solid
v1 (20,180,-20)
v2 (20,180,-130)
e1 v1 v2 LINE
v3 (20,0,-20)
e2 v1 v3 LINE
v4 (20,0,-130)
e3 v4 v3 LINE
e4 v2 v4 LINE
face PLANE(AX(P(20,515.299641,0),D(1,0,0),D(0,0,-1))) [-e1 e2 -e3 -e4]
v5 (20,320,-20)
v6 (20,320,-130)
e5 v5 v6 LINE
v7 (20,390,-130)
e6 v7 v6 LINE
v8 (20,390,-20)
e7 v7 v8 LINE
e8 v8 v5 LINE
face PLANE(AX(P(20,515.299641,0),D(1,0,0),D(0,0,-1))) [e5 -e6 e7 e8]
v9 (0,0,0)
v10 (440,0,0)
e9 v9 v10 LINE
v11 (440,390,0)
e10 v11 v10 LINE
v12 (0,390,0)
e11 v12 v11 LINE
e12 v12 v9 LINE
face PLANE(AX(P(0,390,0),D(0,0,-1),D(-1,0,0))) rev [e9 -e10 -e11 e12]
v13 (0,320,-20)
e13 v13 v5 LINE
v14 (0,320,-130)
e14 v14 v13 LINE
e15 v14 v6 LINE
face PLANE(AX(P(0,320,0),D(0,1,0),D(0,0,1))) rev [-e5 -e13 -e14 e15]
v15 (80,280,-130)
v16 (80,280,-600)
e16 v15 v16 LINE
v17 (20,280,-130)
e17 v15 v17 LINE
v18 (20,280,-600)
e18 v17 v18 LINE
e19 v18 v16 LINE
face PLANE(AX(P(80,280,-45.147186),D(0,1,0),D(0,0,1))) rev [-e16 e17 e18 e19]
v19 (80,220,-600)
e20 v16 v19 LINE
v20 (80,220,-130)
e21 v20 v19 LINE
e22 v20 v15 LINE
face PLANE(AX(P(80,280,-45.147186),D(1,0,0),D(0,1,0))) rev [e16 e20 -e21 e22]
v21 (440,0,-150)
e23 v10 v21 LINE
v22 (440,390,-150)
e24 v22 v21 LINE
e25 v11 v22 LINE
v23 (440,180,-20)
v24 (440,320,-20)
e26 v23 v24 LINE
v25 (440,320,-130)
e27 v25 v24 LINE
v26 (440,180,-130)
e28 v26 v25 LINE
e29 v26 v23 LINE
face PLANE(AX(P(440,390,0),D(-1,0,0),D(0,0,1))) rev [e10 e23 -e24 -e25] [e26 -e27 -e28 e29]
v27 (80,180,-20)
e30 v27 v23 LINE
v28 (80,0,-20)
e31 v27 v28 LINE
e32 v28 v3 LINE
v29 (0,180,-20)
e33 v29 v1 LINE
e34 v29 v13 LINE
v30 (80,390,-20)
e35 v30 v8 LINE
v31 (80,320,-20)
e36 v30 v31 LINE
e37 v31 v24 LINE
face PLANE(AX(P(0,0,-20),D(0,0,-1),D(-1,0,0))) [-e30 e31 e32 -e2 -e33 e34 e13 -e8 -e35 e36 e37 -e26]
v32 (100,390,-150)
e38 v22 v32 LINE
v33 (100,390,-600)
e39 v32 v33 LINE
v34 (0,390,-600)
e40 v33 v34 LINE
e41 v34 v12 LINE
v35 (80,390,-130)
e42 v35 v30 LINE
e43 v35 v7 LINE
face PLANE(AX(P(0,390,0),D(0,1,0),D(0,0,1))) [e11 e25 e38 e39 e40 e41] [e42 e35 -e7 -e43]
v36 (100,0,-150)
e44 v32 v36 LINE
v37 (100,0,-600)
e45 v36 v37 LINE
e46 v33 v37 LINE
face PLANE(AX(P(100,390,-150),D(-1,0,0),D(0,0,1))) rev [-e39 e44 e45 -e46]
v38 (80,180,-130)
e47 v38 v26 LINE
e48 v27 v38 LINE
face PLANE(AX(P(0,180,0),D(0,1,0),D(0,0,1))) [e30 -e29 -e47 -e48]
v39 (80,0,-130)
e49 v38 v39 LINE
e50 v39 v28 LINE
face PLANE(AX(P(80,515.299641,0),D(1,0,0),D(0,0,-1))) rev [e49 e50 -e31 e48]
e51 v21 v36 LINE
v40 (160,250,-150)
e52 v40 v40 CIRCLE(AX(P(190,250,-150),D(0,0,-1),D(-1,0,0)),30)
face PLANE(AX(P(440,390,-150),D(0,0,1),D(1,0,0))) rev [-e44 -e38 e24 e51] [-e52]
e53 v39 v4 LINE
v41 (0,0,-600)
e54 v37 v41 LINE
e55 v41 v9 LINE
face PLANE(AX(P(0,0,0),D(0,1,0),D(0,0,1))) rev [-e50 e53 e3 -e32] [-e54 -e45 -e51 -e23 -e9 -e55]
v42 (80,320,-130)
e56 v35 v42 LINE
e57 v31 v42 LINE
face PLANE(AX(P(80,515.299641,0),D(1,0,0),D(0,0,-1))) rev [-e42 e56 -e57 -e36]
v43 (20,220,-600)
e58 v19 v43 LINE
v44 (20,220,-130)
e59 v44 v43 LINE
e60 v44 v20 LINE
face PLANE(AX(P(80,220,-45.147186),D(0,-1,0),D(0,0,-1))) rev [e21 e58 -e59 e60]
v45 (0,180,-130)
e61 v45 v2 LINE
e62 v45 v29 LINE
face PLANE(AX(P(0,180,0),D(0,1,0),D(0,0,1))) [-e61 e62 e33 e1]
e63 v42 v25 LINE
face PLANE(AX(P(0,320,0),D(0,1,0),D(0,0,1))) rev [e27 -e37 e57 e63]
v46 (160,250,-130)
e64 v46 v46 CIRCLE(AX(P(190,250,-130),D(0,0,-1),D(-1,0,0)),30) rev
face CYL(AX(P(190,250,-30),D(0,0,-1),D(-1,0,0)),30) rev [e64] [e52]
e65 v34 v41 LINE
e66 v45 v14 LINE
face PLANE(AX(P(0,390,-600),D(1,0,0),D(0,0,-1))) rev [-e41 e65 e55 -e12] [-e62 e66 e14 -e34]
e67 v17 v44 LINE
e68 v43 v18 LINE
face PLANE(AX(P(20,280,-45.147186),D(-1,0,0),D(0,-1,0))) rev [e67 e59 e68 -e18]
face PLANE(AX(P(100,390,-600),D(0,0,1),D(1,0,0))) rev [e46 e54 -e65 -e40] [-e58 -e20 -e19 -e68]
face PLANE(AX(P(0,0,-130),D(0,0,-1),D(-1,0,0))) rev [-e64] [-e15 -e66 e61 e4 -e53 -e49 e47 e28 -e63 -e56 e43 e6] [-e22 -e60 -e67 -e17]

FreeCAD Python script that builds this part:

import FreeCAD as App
import Part
import Sketcher

V = App.Vector

doc = App.newDocument("Part")
params = doc.addObject("Spreadsheet::Sheet", "Params")
for row, (alias, value) in enumerate([
    ("sketch1_width", "440 mm"),
    ("sketch1_width2", "340 mm"),
    ("sketch1_height", "150 mm"),
    ("sketch1_height2", "450 mm"),
    ("pad1_length", "390 mm"),
    ("sketch2_diameter", "60 mm"),
    ("pocket1_length", "120 mm"),
    ("sketch3_width", "140 mm"),
    ("sketch3_height", "110 mm"),
    ("sketch4_width", "60 mm"),
    ("sketch4_height", "110 mm"),
    ("pocket3_length", "390 mm"),
    ("sketch5_width", "60 mm"),
    ("pocket4_length", "470 mm"),
], start=1):
    params.set(f"A{row}", alias)
    params.set(f"B{row}", "=" + value)
    params.setAlias(f"B{row}", alias)

body = doc.addObject("PartDesign::Body", "Body")

sketch1 = body.newObject("Sketcher::SketchObject", "Sketch")
sketch1.AttachmentSupport = (doc.getObject("XZ_Plane"), [""])
sketch1.MapMode = "FlatFace"
sketch1.addGeometry([
    Part.LineSegment(V(0, 0, 0), V(440, 0, 0)),
    Part.LineSegment(V(440, 0, 0), V(440, -150, 0)),
    Part.LineSegment(V(440, -150, 0), V(100, -150, 0)),
    Part.LineSegment(V(100, -150, 0), V(100, -600, 0)),
    Part.LineSegment(V(100, -600, 0), V(0, -600, 0)),
    Part.LineSegment(V(0, -600, 0), V(0, 0, 0)),
], False)
sketch1.addConstraint([
    Sketcher.Constraint("Coincident", 0, 2, 1, 1),
    Sketcher.Constraint("Coincident", 1, 2, 2, 1),
    Sketcher.Constraint("Coincident", 2, 2, 3, 1),
    Sketcher.Constraint("Coincident", 3, 2, 4, 1),
    Sketcher.Constraint("Coincident", 4, 2, 5, 1),
    Sketcher.Constraint("Coincident", 5, 2, 0, 1),
    Sketcher.Constraint("Horizontal", 0),
    Sketcher.Constraint("Vertical", 1),
    Sketcher.Constraint("Horizontal", 2),
    Sketcher.Constraint("Vertical", 3),
    Sketcher.Constraint("Horizontal", 4),
    Sketcher.Constraint("Vertical", 5),
    Sketcher.Constraint("Coincident", 5, 2, -1, 1),
    Sketcher.Constraint("DistanceX", 0, 1, 0, 2, 440.0),
    Sketcher.Constraint("DistanceX", 2, 2, 2, 1, 340.0),
    Sketcher.Constraint("DistanceY", 1, 2, 1, 1, 150.0),
    Sketcher.Constraint("DistanceY", 3, 2, 3, 1, 450.0),
])
sketch1.setExpression("Constraints[13]", "Params.sketch1_width")
sketch1.setExpression("Constraints[14]", "Params.sketch1_width2")
sketch1.setExpression("Constraints[15]", "Params.sketch1_height")
sketch1.setExpression("Constraints[16]", "Params.sketch1_height2")
pad1 = body.newObject("PartDesign::Pad", "Pad")
pad1.Profile = sketch1
pad1.setExpression("Length", "Params.pad1_length")
pad1.Reversed = True

sketch2 = body.newObject("Sketcher::SketchObject", "Sketch001")
sketch2.AttachmentSupport = (doc.getObject("XY_Plane"), [""])
sketch2.MapMode = "FlatFace"
sketch2.AttachmentOffset = App.Placement(V(0, 0, -150), App.Rotation())
sketch2.addGeometry(Part.Circle(V(190, 250, 0), V(0, 0, 1), 30), False)
sketch2.addConstraint([
    Sketcher.Constraint("Diameter", 0, 60.0),
    Sketcher.Constraint("DistanceX", -1, 1, 0, 3, 190.0),
    Sketcher.Constraint("DistanceY", -1, 1, 0, 3, 250.0),
])
sketch2.setExpression("Constraints[0]", "Params.sketch2_diameter")
pocket1 = body.newObject("PartDesign::Pocket", "Pocket")
pocket1.Profile = sketch2
pocket1.setExpression("Length", "Params.pocket1_length")
pocket1.Reversed = True

sketch3 = body.newObject("Sketcher::SketchObject", "Sketch002")
sketch3.AttachmentSupport = (doc.getObject("YZ_Plane"), [""])
sketch3.MapMode = "FlatFace"
sketch3.AttachmentOffset = App.Placement(V(0, 0, 440), App.Rotation())
sketch3.addGeometry([
    Part.LineSegment(V(320, -20, 0), V(180, -20, 0)),
    Part.LineSegment(V(180, -20, 0), V(180, -130, 0)),
    Part.LineSegment(V(180, -130, 0), V(320, -130, 0)),
    Part.LineSegment(V(320, -130, 0), V(320, -20, 0)),
], False)
sketch3.addConstraint([
    Sketcher.Constraint("Coincident", 0, 2, 1, 1),
    Sketcher.Constraint("Coincident", 1, 2, 2, 1),
    Sketcher.Constraint("Coincident", 2, 2, 3, 1),
    Sketcher.Constraint("Coincident", 3, 2, 0, 1),
    Sketcher.Constraint("Horizontal", 0),
    Sketcher.Constraint("Vertical", 1),
    Sketcher.Constraint("Horizontal", 2),
    Sketcher.Constraint("Vertical", 3),
    Sketcher.Constraint("DistanceX", 0, 2, 0, 1, 140.0),
    Sketcher.Constraint("DistanceY", 1, 2, 1, 1, 110.0),
    Sketcher.Constraint("DistanceX", -1, 1, 0, 2, 180.0),
    Sketcher.Constraint("DistanceY", 0, 2, -1, 1, 20.0),
])
sketch3.setExpression("Constraints[8]", "Params.sketch3_width")
sketch3.setExpression("Constraints[9]", "Params.sketch3_height")
pocket2 = body.newObject("PartDesign::Pocket", "Pocket001")
pocket2.Profile = sketch3
pocket2.Type = "ThroughAll"

sketch4 = body.newObject("Sketcher::SketchObject", "Sketch003")
sketch4.AttachmentSupport = (doc.getObject("XZ_Plane"), [""])
sketch4.MapMode = "FlatFace"
sketch4.AttachmentOffset = App.Placement(V(0, 0, -390), App.Rotation())
sketch4.addGeometry([
    Part.LineSegment(V(80, -130, 0), V(80, -20, 0)),
    Part.LineSegment(V(80, -20, 0), V(20, -20, 0)),
    Part.LineSegment(V(20, -20, 0), V(20, -130, 0)),
    Part.LineSegment(V(20, -130, 0), V(80, -130, 0)),
], False)
sketch4.addConstraint([
    Sketcher.Constraint("Coincident", 0, 2, 1, 1),
    Sketcher.Constraint("Coincident", 1, 2, 2, 1),
    Sketcher.Constraint("Coincident", 2, 2, 3, 1),
    Sketcher.Constraint("Coincident", 3, 2, 0, 1),
    Sketcher.Constraint("Vertical", 0),
    Sketcher.Constraint("Horizontal", 1),
    Sketcher.Constraint("Vertical", 2),
    Sketcher.Constraint("Horizontal", 3),
    Sketcher.Constraint("DistanceX", 1, 2, 1, 1, 60.0),
    Sketcher.Constraint("DistanceY", 0, 1, 0, 2, 110.0),
    Sketcher.Constraint("DistanceX", -1, 1, 0, 2, 80.0),
    Sketcher.Constraint("DistanceY", 0, 2, -1, 1, 20.0),
])
sketch4.setExpression("Constraints[8]", "Params.sketch4_width")
sketch4.setExpression("Constraints[9]", "Params.sketch4_height")
pocket3 = body.newObject("PartDesign::Pocket", "Pocket002")
pocket3.Profile = sketch4
pocket3.setExpression("Length", "Params.pocket3_length")
pocket3.Reversed = True

sketch5 = body.newObject("Sketcher::SketchObject", "Sketch004")
sketch5.AttachmentSupport = (doc.getObject("XY_Plane"), [""])
sketch5.MapMode = "FlatFace"
sketch5.AttachmentOffset = App.Placement(V(0, 0, -600), App.Rotation())
sketch5.addGeometry([
    Part.LineSegment(V(80, 280, 0), V(80, 220, 0)),
    Part.LineSegment(V(80, 220, 0), V(20, 220, 0)),
    Part.LineSegment(V(20, 220, 0), V(20, 280, 0)),
    Part.LineSegment(V(20, 280, 0), V(80, 280, 0)),
], False)
sketch5.addConstraint([
    Sketcher.Constraint("Coincident", 0, 2, 1, 1),
    Sketcher.Constraint("Coincident", 1, 2, 2, 1),
    Sketcher.Constraint("Coincident", 2, 2, 3, 1),
    Sketcher.Constraint("Coincident", 3, 2, 0, 1),
    Sketcher.Constraint("Vertical", 0),
    Sketcher.Constraint("Horizontal", 1),
    Sketcher.Constraint("Vertical", 2),
    Sketcher.Constraint("Horizontal", 3),
    Sketcher.Constraint("Equal", 3, 0),
    Sketcher.Constraint("DistanceX", 1, 2, 1, 1, 60.0),
    Sketcher.Constraint("DistanceX", -1, 1, 0, 2, 80.0),
    Sketcher.Constraint("DistanceY", -1, 1, 0, 2, 220.0),
])
sketch5.setExpression("Constraints[9]", "Params.sketch5_width")
pocket4 = body.newObject("PartDesign::Pocket", "Pocket003")
pocket4.Profile = sketch5
pocket4.setExpression("Length", "Params.pocket4_length")
pocket4.Reversed = True

doc.recompute()
